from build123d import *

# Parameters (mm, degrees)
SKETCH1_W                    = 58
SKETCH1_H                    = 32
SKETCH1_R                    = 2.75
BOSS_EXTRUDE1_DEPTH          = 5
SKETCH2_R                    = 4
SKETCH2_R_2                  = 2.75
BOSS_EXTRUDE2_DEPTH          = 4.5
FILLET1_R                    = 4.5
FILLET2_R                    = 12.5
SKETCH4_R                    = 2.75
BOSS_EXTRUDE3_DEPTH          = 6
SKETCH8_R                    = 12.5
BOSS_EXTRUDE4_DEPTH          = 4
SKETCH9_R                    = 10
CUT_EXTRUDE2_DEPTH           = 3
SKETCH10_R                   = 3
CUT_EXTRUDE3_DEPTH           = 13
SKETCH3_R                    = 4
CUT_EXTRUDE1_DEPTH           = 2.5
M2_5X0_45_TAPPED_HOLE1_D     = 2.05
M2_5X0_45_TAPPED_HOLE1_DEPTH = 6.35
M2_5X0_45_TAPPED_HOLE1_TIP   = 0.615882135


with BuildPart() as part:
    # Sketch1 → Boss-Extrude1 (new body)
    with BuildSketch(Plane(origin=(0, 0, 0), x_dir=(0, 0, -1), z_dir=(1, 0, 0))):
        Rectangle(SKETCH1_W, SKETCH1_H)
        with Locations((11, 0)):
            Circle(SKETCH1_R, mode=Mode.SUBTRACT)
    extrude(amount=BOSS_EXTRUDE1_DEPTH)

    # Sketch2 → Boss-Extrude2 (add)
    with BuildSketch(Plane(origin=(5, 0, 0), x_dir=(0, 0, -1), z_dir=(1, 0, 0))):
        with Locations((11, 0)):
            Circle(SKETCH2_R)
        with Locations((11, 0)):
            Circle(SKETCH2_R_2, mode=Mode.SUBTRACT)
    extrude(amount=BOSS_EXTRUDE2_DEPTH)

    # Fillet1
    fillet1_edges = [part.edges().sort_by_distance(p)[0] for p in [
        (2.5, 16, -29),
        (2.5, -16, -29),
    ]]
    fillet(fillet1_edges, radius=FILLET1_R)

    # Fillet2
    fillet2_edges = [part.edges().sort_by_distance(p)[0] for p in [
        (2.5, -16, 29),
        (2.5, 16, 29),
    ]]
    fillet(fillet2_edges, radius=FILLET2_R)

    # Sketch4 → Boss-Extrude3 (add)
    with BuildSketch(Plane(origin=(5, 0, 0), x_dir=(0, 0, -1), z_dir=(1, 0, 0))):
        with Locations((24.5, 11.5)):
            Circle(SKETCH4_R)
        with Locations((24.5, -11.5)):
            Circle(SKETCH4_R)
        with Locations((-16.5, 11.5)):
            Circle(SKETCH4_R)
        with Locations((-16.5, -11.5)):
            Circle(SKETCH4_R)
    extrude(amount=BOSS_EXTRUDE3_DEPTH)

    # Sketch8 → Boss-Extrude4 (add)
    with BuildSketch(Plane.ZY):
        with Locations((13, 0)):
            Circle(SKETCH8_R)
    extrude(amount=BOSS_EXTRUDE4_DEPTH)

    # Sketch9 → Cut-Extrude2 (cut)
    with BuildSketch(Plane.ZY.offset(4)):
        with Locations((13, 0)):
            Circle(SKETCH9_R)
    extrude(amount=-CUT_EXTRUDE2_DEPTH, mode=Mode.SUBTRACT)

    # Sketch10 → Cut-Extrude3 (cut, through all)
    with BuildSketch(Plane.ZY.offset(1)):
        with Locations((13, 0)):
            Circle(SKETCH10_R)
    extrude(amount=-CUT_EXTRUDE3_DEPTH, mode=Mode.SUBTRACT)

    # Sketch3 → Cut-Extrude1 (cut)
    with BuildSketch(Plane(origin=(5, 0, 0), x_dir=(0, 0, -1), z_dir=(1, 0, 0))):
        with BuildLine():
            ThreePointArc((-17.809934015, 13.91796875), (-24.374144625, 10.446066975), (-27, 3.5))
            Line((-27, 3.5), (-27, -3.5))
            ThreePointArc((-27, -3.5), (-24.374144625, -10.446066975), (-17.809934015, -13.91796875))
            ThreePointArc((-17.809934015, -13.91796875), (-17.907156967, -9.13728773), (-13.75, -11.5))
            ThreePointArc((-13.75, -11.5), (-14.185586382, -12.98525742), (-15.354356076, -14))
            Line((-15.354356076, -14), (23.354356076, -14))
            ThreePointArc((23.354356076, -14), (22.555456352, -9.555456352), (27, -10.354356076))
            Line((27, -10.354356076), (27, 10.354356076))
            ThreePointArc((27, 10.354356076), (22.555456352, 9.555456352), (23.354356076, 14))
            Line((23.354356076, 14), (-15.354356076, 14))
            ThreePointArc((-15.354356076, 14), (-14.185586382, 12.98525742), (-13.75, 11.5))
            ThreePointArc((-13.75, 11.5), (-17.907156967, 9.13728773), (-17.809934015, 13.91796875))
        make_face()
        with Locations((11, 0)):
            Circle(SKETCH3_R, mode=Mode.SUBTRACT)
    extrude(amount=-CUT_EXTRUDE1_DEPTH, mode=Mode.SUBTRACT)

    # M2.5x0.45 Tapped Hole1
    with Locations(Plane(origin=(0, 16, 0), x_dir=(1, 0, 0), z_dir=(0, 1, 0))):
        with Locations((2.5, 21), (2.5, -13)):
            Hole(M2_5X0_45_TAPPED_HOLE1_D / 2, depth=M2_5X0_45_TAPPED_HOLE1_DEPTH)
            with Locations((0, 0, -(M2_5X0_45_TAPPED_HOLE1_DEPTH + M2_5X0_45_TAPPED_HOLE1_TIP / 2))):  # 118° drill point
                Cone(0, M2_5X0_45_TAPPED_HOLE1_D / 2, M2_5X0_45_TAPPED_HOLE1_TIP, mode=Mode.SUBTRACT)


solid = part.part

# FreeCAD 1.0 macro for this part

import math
import FreeCAD as App
import Part
import Sketcher

V = App.Vector


def edges_at(feature, points):
    """Names of the edges that pass closest to the given points."""
    edges = feature.Shape.Edges
    near = lambda p: min(range(len(edges)), key=lambda i: edges[i].distToShape(Part.Vertex(*p))[0])
    return sorted({f"Edge{near(p) + 1}" for p in points})

doc = App.newDocument("Part")
body = doc.addObject("PartDesign::Body", "Body")

# Sketch on YZ plane
sketch1 = body.newObject("Sketcher::SketchObject", "Sketch")
sketch1.AttachmentSupport = (doc.getObject("YZ_Plane"), [""])
sketch1.MapMode = "FlatFace"
sketch1.addGeometry([
    Part.LineSegment(V(16, 29, 0), V(-16, 29, 0)),  # 0
    Part.LineSegment(V(-16, 29, 0), V(-16, -29, 0)),  # 1
    Part.LineSegment(V(-16, -29, 0), V(16, -29, 0)),  # 2
    Part.LineSegment(V(16, -29, 0), V(16, 29, 0)),  # 3
    Part.Circle(V(0, -11, 0), V(0, 0, 1), 2.8),  # 4
], False)
sketch1.addConstraint([
    Sketcher.Constraint("Coincident", 0, 2, 1, 1),
    Sketcher.Constraint("Coincident", 1, 2, 2, 1),
    Sketcher.Constraint("Coincident", 2, 2, 3, 1),
    Sketcher.Constraint("Coincident", 3, 2, 0, 1),
    Sketcher.Constraint("Horizontal", 0),
    Sketcher.Constraint("Vertical", 1),
    Sketcher.Constraint("Horizontal", 2),
    Sketcher.Constraint("Vertical", 3),
    Sketcher.Constraint("Symmetric", 0, 2, 2, 2, -1, 1),
    Sketcher.Constraint("PointOnObject", 4, 3, -2),
    Sketcher.Constraint("Diameter", 4, 5.5),
    Sketcher.Constraint("DistanceX", 0, 2, 0, 1, 32.0),
    Sketcher.Constraint("DistanceY", 1, 2, 1, 1, 58.0),
    Sketcher.Constraint("DistanceY", 4, 3, -1, 1, 11.0),
])
pad1 = body.newObject("PartDesign::Pad", "Pad")
pad1.Profile = sketch1
pad1.Length = 5

# Sketch on YZ plane
sketch2 = body.newObject("Sketcher::SketchObject", "Sketch001")
sketch2.AttachmentSupport = (doc.getObject("YZ_Plane"), [""])
sketch2.MapMode = "FlatFace"
sketch2.AttachmentOffset = App.Placement(V(0, 0, 5), App.Rotation())
sketch2.addGeometry([
    Part.Circle(V(0, -11, 0), V(0, 0, 1), 4),
    Part.Circle(V(0, -11, 0), V(0, 0, 1), 2.8),
], False)
sketch2.addConstraint([
    Sketcher.Constraint("Coincident", 1, 3, 0, 3),
    Sketcher.Constraint("PointOnObject", 0, 3, -2),
    Sketcher.Constraint("Diameter", 0, 8.0),
    Sketcher.Constraint("Diameter", 1, 5.5),
    Sketcher.Constraint("DistanceY", 0, 3, -1, 1, 11.0),
])
pad2 = body.newObject("PartDesign::Pad", "Pad001")
pad2.Profile = sketch2
pad2.Length = 4.5
doc.recompute()

fillet = body.newObject("PartDesign::Fillet", "Fillet")
fillet.Base = (pad2, edges_at(pad2, [(2.5, 16, -29), (2.5, -16, -29)]))
fillet.Radius = 4.5
doc.recompute()

fillet2 = body.newObject("PartDesign::Fillet", "Fillet001")
fillet2.Base = (fillet, edges_at(fillet, [(2.5, -16, 29), (2.5, 16, 29)]))
fillet2.Radius = 12.5

# Sketch on YZ plane
sketch3 = body.newObject("Sketcher::SketchObject", "Sketch002")
sketch3.AttachmentSupport = (doc.getObject("YZ_Plane"), [""])
sketch3.MapMode = "FlatFace"
sketch3.AttachmentOffset = App.Placement(V(0, 0, 5), App.Rotation())
sketch3.addGeometry([
    Part.Circle(V(11.5, -24.5, 0), V(0, 0, 1), 2.8),
    Part.Circle(V(-11.5, -24.5, 0), V(0, 0, 1), 2.8),
    Part.Circle(V(11.5, 16.5, 0), V(0, 0, 1), 2.8),
    Part.Circle(V(-11.5, 16.5, 0), V(0, 0, 1), 2.8),
], False)
sketch3.addConstraint([
    Sketcher.Constraint("Equal", 0, 1),
    Sketcher.Constraint("Equal", 1, 2),
    Sketcher.Constraint("Equal", 2, 3),
    Sketcher.Constraint("Symmetric", 0, 3, 1, 3, -2),
    Sketcher.Constraint("Symmetric", 2, 3, 3, 3, -2),
    Sketcher.Constraint("Vertical", 0, 3, 2, 3),
    Sketcher.Constraint("Diameter", 0, 5.5),
    Sketcher.Constraint("DistanceX", 1, 3, 0, 3, 23.0),
    Sketcher.Constraint("DistanceY", 0, 3, 2, 3, 41.0),
    Sketcher.Constraint("DistanceY", 0, 3, -1, 1, 24.5),
])
pad3 = body.newObject("PartDesign::Pad", "Pad002")
pad3.Profile = sketch3
pad3.Length = 6

# Sketch on YZ plane
sketch4 = body.newObject("Sketcher::SketchObject", "Sketch003")
sketch4.AttachmentSupport = (doc.getObject("YZ_Plane"), [""])
sketch4.MapMode = "FlatFace"
sketch4.addGeometry(Part.Circle(V(0, 13, 0), V(0, 0, 1), 12), False)
sketch4.addConstraint([
    Sketcher.Constraint("PointOnObject", 0, 3, -2),
    Sketcher.Constraint("Diameter", 0, 25.0),
    Sketcher.Constraint("DistanceY", -1, 1, 0, 3, 13.0),
])
pad4 = body.newObject("PartDesign::Pad", "Pad003")
pad4.Profile = sketch4
pad4.Length = 4
pad4.Reversed = True

# Sketch on YZ plane
sketch5 = body.newObject("Sketcher::SketchObject", "Sketch004")
sketch5.AttachmentSupport = (doc.getObject("YZ_Plane"), [""])
sketch5.MapMode = "FlatFace"
sketch5.AttachmentOffset = App.Placement(V(0, 0, -4), App.Rotation())
sketch5.addGeometry(Part.Circle(V(0, 13, 0), V(0, 0, 1), 10), False)
sketch5.addConstraint([
    Sketcher.Constraint("PointOnObject", 0, 3, -2),
    Sketcher.Constraint("Diameter", 0, 20.0),
    Sketcher.Constraint("DistanceY", -1, 1, 0, 3, 13.0),
])
pocket1 = body.newObject("PartDesign::Pocket", "Pocket")
pocket1.Profile = sketch5
pocket1.Length = 3
pocket1.Reversed = True

# Sketch on YZ plane
sketch6 = body.newObject("Sketcher::SketchObject", "Sketch005")
sketch6.AttachmentSupport = (doc.getObject("YZ_Plane"), [""])
sketch6.MapMode = "FlatFace"
sketch6.AttachmentOffset = App.Placement(V(0, 0, -1), App.Rotation())
sketch6.addGeometry(Part.Circle(V(0, 13, 0), V(0, 0, 1), 3), False)
sketch6.addConstraint([
    Sketcher.Constraint("PointOnObject", 0, 3, -2),
    Sketcher.Constraint("Diameter", 0, 6.0),
    Sketcher.Constraint("DistanceY", -1, 1, 0, 3, 13.0),
])
pocket2 = body.newObject("PartDesign::Pocket", "Pocket001")
pocket2.Profile = sketch6
pocket2.Type = "ThroughAll"
pocket2.Reversed = True

# Sketch on YZ plane
sketch7 = body.newObject("Sketcher::SketchObject", "Sketch006")
sketch7.AttachmentSupport = (doc.getObject("YZ_Plane"), [""])
sketch7.MapMode = "FlatFace"
sketch7.AttachmentOffset = App.Placement(V(0, 0, 5), App.Rotation())
sketch7.addGeometry([
    Part.ArcOfCircle(Part.Circle(V(3.5, 16.5, 0), V(0, 0, 1), 10.5), math.radians(7), math.radians(90)),  # 0
    Part.LineSegment(V(3.5, 27, 0), V(-3.5, 27, 0)),  # 1
    Part.ArcOfCircle(Part.Circle(V(-3.5, 16.5, 0), V(0, 0, 1), 10.5), math.radians(90), math.radians(173)),  # 2
    Part.ArcOfCircle(Part.Circle(V(-11.5, 16.5, 0), V(0, 0, 1), 2.8), math.radians(-90), math.radians(152)),  # 3
    Part.ArcOfCircle(Part.Circle(V(-11.5, 16.5, 0), V(0, 0, 1), 2.8), math.radians(-155), math.radians(-90)),  # 4
    Part.LineSegment(V(-14, 15.4, 0), V(-14, -23.4, 0)),  # 5
    Part.ArcOfCircle(Part.Circle(V(-11.5, -24.5, 0), V(0, 0, 1), 2.8), math.radians(-65), math.radians(155)),  # 6
    Part.LineSegment(V(-10.4, -27, 0), V(10.4, -27, 0)),  # 7
    Part.ArcOfCircle(Part.Circle(V(11.5, -24.5, 0), V(0, 0, 1), 2.8), math.radians(25), math.radians(245)),  # 8
    Part.LineSegment(V(14, -23.4, 0), V(14, 15.4, 0)),  # 9
    Part.ArcOfCircle(Part.Circle(V(11.5, 16.5, 0), V(0, 0, 1), 2.8), math.radians(-90), math.radians(-25)),  # 10
    Part.ArcOfCircle(Part.Circle(V(11.5, 16.5, 0), V(0, 0, 1), 2.8), math.radians(28), math.radians(270)),  # 11
    Part.Circle(V(0, -11, 0), V(0, 0, 1), 4),  # 12
], False)
sketch7.addConstraint([
    Sketcher.Constraint("Tangent", 0, 2, 1, 1),
    Sketcher.Constraint("Tangent", 1, 2, 2, 1),
    Sketcher.Constraint("Coincident", 2, 2, 3, 2),
    Sketcher.Constraint("Tangent", 3, 1, 4, 2),
    Sketcher.Constraint("Coincident", 4, 1, 5, 1),
    Sketcher.Constraint("Coincident", 5, 2, 6, 2),
    Sketcher.Constraint("Coincident", 6, 1, 7, 1),
    Sketcher.Constraint("Coincident", 7, 2, 8, 2),
    Sketcher.Constraint("Coincident", 8, 1, 9, 1),
    Sketcher.Constraint("Coincident", 9, 2, 10, 2),
    Sketcher.Constraint("Tangent", 10, 1, 11, 2),
    Sketcher.Constraint("Coincident", 11, 1, 0, 1),
    Sketcher.Constraint("Horizontal", 1),
    Sketcher.Constraint("Vertical", 5),
    Sketcher.Constraint("Horizontal", 7),
    Sketcher.Constraint("Vertical", 9),
    Sketcher.Constraint("Equal", 0, 2),
    Sketcher.Constraint("Equal", 3, 4),
    Sketcher.Constraint("Equal", 4, 6),
    Sketcher.Constraint("Equal", 6, 8),
    Sketcher.Constraint("Equal", 8, 10),
    Sketcher.Constraint("Equal", 10, 11),
    Sketcher.Constraint("Symmetric", 6, 3, 8, 3, -2),
    Sketcher.Constraint("Symmetric", 3, 3, 10, 3, -2),
    Sketcher.Constraint("PointOnObject", 12, 3, -2),
    Sketcher.Constraint("Horizontal", 2, 3, 3, 3),
    Sketcher.Constraint("Horizontal", 5, 2, 8, 1),
    Sketcher.Constraint("Horizontal", 2, 2, 11, 1),
    Sketcher.Constraint("Vertical", 4, 3, 6, 3),
    Sketcher.Constraint("Vertical", 6, 3, 3, 1),
    Sketcher.Constraint("Vertical", 11, 3, 10, 1),
    Sketcher.Constraint("Diameter", 12, 8.0),
    Sketcher.Constraint("Radius", 0, 10.5),
    Sketcher.Constraint("DistanceX", 1, 2, 1, 1, 7.0),
    Sketcher.Constraint("Radius", 3, 2.75),
    Sketcher.Constraint("DistanceY", 12, 3, -1, 1, 11.0),
    Sketcher.Constraint("DistanceY", -1, 1, 0, 2, 27.0),
    Sketcher.Constraint("DistanceX", 4, 1, -1, 1, 14.0),
    Sketcher.Constraint("DistanceY", 6, 1, -1, 1, 27.0),
    Sketcher.Constraint("DistanceX", 3, 3, 2, 3, 8.0),
    Sketcher.Constraint("DistanceY", 6, 3, 3, 3, 41.0),
])
pocket3 = body.newObject("PartDesign::Pocket", "Pocket002")
pocket3.Profile = sketch7
pocket3.Length = 2.5

# Sketch on XZ plane
sketch8 = body.newObject("Sketcher::SketchObject", "Sketch007")
sketch8.AttachmentSupport = (doc.getObject("XZ_Plane"), [""])
sketch8.MapMode = "FlatFace"
sketch8.AttachmentOffset = App.Placement(V(0, 0, -16), App.Rotation())
sketch8.addGeometry([
    Part.Circle(V(2.5, -21, 0), V(0, 0, 1), 1),
    Part.Circle(V(2.5, 13, 0), V(0, 0, 1), 1),
], False)
sketch8.addConstraint([
    Sketcher.Constraint("Equal", 0, 1),
    Sketcher.Constraint("Vertical", 0, 3, 1, 3),
    Sketcher.Constraint("Diameter", 0, 2.05),
    Sketcher.Constraint("DistanceY", 0, 3, -1, 1, 21.0),
    Sketcher.Constraint("DistanceY", -1, 1, 1, 3, 13.0),
    Sketcher.Constraint("DistanceX", -1, 1, 0, 3, 2.5),
])
doc.recompute()
hole = body.newObject("PartDesign::Hole", "Hole")
hole.Profile = sketch8
hole.ThreadType = "None"
hole.Diameter = 2.05
hole.DepthType = "Dimension"
hole.Depth = 6.35
hole.DrillPoint = "Angled"
hole.DrillPointAngle = 118
hole.Reversed = True

doc.recompute()
